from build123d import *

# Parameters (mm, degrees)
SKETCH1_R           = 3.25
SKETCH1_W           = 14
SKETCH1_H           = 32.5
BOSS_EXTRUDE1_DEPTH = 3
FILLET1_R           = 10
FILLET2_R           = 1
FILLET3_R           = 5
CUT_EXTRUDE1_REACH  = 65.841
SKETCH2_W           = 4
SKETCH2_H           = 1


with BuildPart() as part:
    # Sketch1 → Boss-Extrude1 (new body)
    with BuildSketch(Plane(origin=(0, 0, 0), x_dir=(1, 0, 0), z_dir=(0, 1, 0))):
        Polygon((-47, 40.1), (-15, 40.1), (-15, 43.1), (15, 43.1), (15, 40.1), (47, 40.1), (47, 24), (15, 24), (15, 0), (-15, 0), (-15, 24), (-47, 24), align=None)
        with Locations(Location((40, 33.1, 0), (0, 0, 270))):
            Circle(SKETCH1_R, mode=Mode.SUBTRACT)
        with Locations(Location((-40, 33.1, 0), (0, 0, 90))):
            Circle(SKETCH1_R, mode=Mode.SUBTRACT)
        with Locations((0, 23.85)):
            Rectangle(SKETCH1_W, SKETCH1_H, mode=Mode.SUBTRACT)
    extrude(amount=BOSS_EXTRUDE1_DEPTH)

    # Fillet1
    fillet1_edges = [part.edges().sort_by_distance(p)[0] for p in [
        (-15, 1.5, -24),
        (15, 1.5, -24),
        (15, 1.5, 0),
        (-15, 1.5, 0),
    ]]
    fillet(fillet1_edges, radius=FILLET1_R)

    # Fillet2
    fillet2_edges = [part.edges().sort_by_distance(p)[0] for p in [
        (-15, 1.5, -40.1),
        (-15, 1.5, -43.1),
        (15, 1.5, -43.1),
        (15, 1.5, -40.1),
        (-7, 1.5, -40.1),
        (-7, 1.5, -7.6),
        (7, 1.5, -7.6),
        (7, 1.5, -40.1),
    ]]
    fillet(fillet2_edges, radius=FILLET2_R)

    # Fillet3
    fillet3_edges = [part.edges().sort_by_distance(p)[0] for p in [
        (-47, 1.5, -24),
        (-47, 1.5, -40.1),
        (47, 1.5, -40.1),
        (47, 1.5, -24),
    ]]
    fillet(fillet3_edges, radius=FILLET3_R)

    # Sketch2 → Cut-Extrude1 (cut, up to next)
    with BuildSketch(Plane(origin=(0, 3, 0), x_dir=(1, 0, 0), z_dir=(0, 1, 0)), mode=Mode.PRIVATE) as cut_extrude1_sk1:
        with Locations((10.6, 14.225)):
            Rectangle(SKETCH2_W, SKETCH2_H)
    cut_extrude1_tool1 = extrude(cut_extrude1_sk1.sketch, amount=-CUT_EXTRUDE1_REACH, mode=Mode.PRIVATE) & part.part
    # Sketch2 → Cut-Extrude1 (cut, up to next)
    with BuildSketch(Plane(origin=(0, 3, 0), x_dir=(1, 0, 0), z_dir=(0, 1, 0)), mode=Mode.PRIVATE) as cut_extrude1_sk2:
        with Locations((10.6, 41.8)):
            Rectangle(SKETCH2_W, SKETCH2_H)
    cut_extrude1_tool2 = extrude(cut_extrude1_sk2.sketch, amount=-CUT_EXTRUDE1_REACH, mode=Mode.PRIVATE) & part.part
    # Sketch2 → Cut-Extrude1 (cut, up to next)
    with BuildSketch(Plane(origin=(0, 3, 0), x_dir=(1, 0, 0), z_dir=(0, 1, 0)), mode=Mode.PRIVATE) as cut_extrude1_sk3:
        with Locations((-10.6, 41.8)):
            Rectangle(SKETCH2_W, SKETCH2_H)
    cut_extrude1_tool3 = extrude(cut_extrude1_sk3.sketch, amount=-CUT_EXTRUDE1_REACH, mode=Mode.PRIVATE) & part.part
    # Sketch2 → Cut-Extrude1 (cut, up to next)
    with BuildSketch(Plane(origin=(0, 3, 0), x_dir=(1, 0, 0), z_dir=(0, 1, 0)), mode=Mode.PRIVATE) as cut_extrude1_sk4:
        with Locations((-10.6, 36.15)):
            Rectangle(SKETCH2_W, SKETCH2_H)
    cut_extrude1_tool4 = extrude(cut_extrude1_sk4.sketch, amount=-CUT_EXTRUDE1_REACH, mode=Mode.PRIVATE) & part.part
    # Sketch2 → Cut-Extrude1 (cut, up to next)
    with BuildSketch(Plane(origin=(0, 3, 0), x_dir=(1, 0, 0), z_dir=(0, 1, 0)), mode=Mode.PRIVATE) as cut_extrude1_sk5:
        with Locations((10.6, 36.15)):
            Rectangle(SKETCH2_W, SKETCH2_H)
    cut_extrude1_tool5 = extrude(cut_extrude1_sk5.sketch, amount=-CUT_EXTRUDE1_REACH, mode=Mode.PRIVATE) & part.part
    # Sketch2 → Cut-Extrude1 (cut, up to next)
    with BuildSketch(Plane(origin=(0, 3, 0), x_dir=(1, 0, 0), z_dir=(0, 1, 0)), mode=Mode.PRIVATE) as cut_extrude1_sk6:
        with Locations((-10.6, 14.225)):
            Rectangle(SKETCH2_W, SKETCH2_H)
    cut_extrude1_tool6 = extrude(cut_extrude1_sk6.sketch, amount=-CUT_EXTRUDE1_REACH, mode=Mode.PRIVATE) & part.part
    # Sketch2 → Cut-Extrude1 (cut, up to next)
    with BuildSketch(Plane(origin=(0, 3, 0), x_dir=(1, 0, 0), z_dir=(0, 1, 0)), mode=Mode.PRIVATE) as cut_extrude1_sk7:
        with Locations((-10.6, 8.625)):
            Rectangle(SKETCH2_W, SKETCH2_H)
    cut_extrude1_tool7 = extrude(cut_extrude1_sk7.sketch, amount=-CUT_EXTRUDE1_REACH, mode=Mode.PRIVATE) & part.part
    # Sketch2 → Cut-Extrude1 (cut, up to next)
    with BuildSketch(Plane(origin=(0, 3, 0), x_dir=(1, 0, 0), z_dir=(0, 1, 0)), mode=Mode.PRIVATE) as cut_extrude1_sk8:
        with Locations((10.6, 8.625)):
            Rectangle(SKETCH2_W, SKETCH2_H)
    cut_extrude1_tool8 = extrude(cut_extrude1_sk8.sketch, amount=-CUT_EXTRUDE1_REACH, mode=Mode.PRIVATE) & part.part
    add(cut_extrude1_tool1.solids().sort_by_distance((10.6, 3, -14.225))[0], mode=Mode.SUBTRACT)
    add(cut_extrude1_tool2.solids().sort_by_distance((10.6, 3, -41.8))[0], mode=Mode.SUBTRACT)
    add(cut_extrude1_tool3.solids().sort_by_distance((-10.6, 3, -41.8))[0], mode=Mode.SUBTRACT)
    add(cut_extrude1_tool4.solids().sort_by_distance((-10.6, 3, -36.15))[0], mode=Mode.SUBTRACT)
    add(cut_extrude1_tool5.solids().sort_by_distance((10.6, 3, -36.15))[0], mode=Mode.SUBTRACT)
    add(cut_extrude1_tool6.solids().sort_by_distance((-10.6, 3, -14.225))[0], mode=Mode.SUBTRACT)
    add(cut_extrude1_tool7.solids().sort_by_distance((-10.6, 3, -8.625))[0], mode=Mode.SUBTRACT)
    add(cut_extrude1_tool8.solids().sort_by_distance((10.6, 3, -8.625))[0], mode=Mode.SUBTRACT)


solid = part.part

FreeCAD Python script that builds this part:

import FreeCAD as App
import Part
import Sketcher

V = App.Vector
Q = App.Units.Quantity


def edges_at(feature, points):
    """Names of the edges that pass closest to the given points."""
    edges = feature.Shape.Edges
    near = lambda p: min(range(len(edges)), key=lambda i: edges[i].distToShape(Part.Vertex(*p))[0])
    return sorted({f"Edge{near(p) + 1}" for p in points})

doc = App.newDocument("Part")
body = doc.addObject("PartDesign::Body", "Body")

# Sketch on XZ plane
sketch1 = body.newObject("Sketcher::SketchObject", "Sketch")
sketch1.AttachmentSupport = (doc.getObject("XZ_Plane"), [""])
sketch1.MapMode = "FlatFace"
sketch1.addGeometry([
    Part.LineSegment(V(-15, -40.1, 0), V(-47, -40.1, 0)),  # 0
    Part.LineSegment(V(-47, -40.1, 0), V(-47, -24, 0)),  # 1
    Part.LineSegment(V(-47, -24, 0), V(-15, -24, 0)),  # 2
    Part.LineSegment(V(-15, -24, 0), V(-15, 0, 0)),  # 3
    Part.LineSegment(V(-15, 0, 0), V(15, 0, 0)),  # 4
    Part.LineSegment(V(15, 0, 0), V(15, -24, 0)),  # 5
    Part.LineSegment(V(15, -24, 0), V(47, -24, 0)),  # 6
    Part.LineSegment(V(47, -24, 0), V(47, -40.1, 0)),  # 7
    Part.LineSegment(V(47, -40.1, 0), V(15, -40.1, 0)),  # 8
    Part.LineSegment(V(15, -40.1, 0), V(15, -43.1, 0)),  # 9
    Part.LineSegment(V(15, -43.1, 0), V(-15, -43.1, 0)),  # 10
    Part.LineSegment(V(-15, -43.1, 0), V(-15, -40.1, 0)),  # 11
    Part.Circle(V(40, -33.1, 0), V(0, 0, 1), 3.2),  # 12
    Part.LineSegment(V(-7, -7.6, 0), V(-7, -40.1, 0)),  # 13
    Part.LineSegment(V(-7, -40.1, 0), V(7, -40.1, 0)),  # 14
    Part.LineSegment(V(7, -40.1, 0), V(7, -7.6, 0)),  # 15
    Part.LineSegment(V(7, -7.6, 0), V(-7, -7.6, 0)),  # 16
    Part.Circle(V(-40, -33.1, 0), V(0, 0, 1), 3.2),  # 17
], False)
sketch1.addConstraint([
    Sketcher.Constraint("Coincident", 0, 2, 1, 1),
    Sketcher.Constraint("Coincident", 1, 2, 2, 1),
    Sketcher.Constraint("Coincident", 2, 2, 3, 1),
    Sketcher.Constraint("Coincident", 3, 2, 4, 1),
    Sketcher.Constraint("Coincident", 4, 2, 5, 1),
    Sketcher.Constraint("Coincident", 5, 2, 6, 1),
    Sketcher.Constraint("Coincident", 6, 2, 7, 1),
    Sketcher.Constraint("Coincident", 7, 2, 8, 1),
    Sketcher.Constraint("Coincident", 8, 2, 9, 1),
    Sketcher.Constraint("Coincident", 9, 2, 10, 1),
    Sketcher.Constraint("Coincident", 10, 2, 11, 1),
    Sketcher.Constraint("Coincident", 11, 2, 0, 1),
    Sketcher.Constraint("Coincident", 13, 2, 14, 1),
    Sketcher.Constraint("Coincident", 14, 2, 15, 1),
    Sketcher.Constraint("Coincident", 15, 2, 16, 1),
    Sketcher.Constraint("Coincident", 16, 2, 13, 1),
    Sketcher.Constraint("Horizontal", 0),
    Sketcher.Constraint("Vertical", 1),
    Sketcher.Constraint("Horizontal", 2),
    Sketcher.Constraint("Vertical", 3),
    Sketcher.Constraint("Horizontal", 4),
    Sketcher.Constraint("Vertical", 5),
    Sketcher.Constraint("Horizontal", 6),
    Sketcher.Constraint("Vertical", 7),
    Sketcher.Constraint("Horizontal", 8),
    Sketcher.Constraint("Vertical", 9),
    Sketcher.Constraint("Horizontal", 10),
    Sketcher.Constraint("Vertical", 11),
    Sketcher.Constraint("Vertical", 13),
    Sketcher.Constraint("Horizontal", 14),
    Sketcher.Constraint("Vertical", 15),
    Sketcher.Constraint("Horizontal", 16),
    Sketcher.Constraint("Equal", 12, 17),
    Sketcher.Constraint("Symmetric", 3, 2, 4, 2, -1, 1),
    Sketcher.Constraint("Symmetric", 12, 3, 17, 3, -2),
    Sketcher.Constraint("Symmetric", 1, 2, 6, 2, -2),
    Sketcher.Constraint("Symmetric", 8, 2, 11, 2, -2),
    Sketcher.Constraint("Horizontal", 11, 2, 13, 2),
    Sketcher.Constraint("Vertical", 5, 2, 8, 2),
    Sketcher.Constraint("Diameter", 12, Q("6.5 mm")),
    Sketcher.Constraint("DistanceX", 0, 2, 0, 1, Q("32 mm")),
    Sketcher.Constraint("DistanceX", 4, 1, 4, 2, Q("30 mm")),
    Sketcher.Constraint("DistanceX", 14, 1, 14, 2, Q("14 mm")),
    Sketcher.Constraint("DistanceY", 3, 1, 3, 2, Q("24 mm")),
    Sketcher.Constraint("DistanceY", 9, 2, 9, 1, Q("3 mm")),
    Sketcher.Constraint("DistanceY", 1, 1, 1, 2, Q("16.1 mm")),
    Sketcher.Constraint("DistanceY", 13, 2, 13, 1, Q("32.5 mm")),
    Sketcher.Constraint("DistanceX", -1, 1, 12, 3, Q("40 mm")),
    Sketcher.Constraint("DistanceX", 13, 2, -1, 1, Q("7 mm")),
    Sketcher.Constraint("DistanceY", 0, 2, 17, 3, Q("7 mm")),
])
pad1 = body.newObject("PartDesign::Pad", "Pad")
pad1.Profile = sketch1
pad1.Length = 3
pad1.Reversed = True
doc.recompute()

fillet = body.newObject("PartDesign::Fillet", "Fillet")
fillet.Base = (pad1, edges_at(pad1, [
    (-15, 1.5, -24),
    (15, 1.5, -24),
    (15, 1.5, 0),
    (-15, 1.5, 0),
]))
fillet.Radius = 10
doc.recompute()

fillet2 = body.newObject("PartDesign::Fillet", "Fillet001")
fillet2.Base = (fillet, edges_at(fillet, [
    (-15, 1.5, -40.1),
    (-15, 1.5, -43.1),
    (15, 1.5, -43.1),
    (15, 1.5, -40.1),
    (-7, 1.5, -40.1),
    (-7, 1.5, -7.6),
    (7, 1.5, -7.6),
    (7, 1.5, -40.1),
]))
fillet2.Radius = 1
doc.recompute()

fillet3 = body.newObject("PartDesign::Fillet", "Fillet002")
fillet3.Base = (fillet2, edges_at(fillet2, [
    (-47, 1.5, -24),
    (-47, 1.5, -40.1),
    (47, 1.5, -40.1),
    (47, 1.5, -24),
]))
fillet3.Radius = 5

# Sketch on XZ plane
sketch2 = body.newObject("Sketcher::SketchObject", "Sketch001")
sketch2.AttachmentSupport = (doc.getObject("XZ_Plane"), [""])
sketch2.MapMode = "FlatFace"
sketch2.AttachmentOffset = App.Placement(V(0, 0, -3), App.Rotation())
sketch2.addGeometry([
    Part.LineSegment(V(8.6, -14.7, 0), V(8.6, -13.7, 0)),
    Part.LineSegment(V(8.6, -13.7, 0), V(12.6, -13.7, 0)),
    Part.LineSegment(V(12.6, -13.7, 0), V(12.6, -14.7, 0)),
    Part.LineSegment(V(12.6, -14.7, 0), V(8.6, -14.7, 0)),
], False)
sketch2.addConstraint([
    Sketcher.Constraint("Coincident", 0, 2, 1, 1),
    Sketcher.Constraint("Coincident", 1, 2, 2, 1),
    Sketcher.Constraint("Coincident", 2, 2, 3, 1),
    Sketcher.Constraint("Coincident", 3, 2, 0, 1),
    Sketcher.Constraint("Vertical", 0),
    Sketcher.Constraint("Horizontal", 1),
    Sketcher.Constraint("Vertical", 2),
    Sketcher.Constraint("Horizontal", 3),
    Sketcher.Constraint("DistanceX", 1, 1, 1, 2, Q("4 mm")),
    Sketcher.Constraint("DistanceY", 0, 1, 0, 2, Q("1 mm")),
    Sketcher.Constraint("DistanceX", -1, 1, 0, 2, Q("8.6 mm")),
    Sketcher.Constraint("DistanceY", 0, 2, -1, 1, Q("13.725 mm")),
])
pocket1 = body.newObject("PartDesign::Pocket", "Pocket")
pocket1.Profile = sketch2
pocket1.Type = "UpToFirst"
pocket1.Reversed = True

# Sketch on XZ plane
sketch3 = body.newObject("Sketcher::SketchObject", "Sketch002")
sketch3.AttachmentSupport = (doc.getObject("XZ_Plane"), [""])
sketch3.MapMode = "FlatFace"
sketch3.AttachmentOffset = App.Placement(V(0, 0, -3), App.Rotation())
sketch3.addGeometry([
    Part.LineSegment(V(8.6, -42.3, 0), V(8.6, -41.3, 0)),
    Part.LineSegment(V(8.6, -41.3, 0), V(12.6, -41.3, 0)),
    Part.LineSegment(V(12.6, -41.3, 0), V(12.6, -42.3, 0)),
    Part.LineSegment(V(12.6, -42.3, 0), V(8.6, -42.3, 0)),
], False)
sketch3.addConstraint([
    Sketcher.Constraint("Coincident", 0, 2, 1, 1),
    Sketcher.Constraint("Coincident", 1, 2, 2, 1),
    Sketcher.Constraint("Coincident", 2, 2, 3, 1),
    Sketcher.Constraint("Coincident", 3, 2, 0, 1),
    Sketcher.Constraint("Vertical", 0),
    Sketcher.Constraint("Horizontal", 1),
    Sketcher.Constraint("Vertical", 2),
    Sketcher.Constraint("Horizontal", 3),
    Sketcher.Constraint("DistanceX", 1, 1, 1, 2, Q("4 mm")),
    Sketcher.Constraint("DistanceY", 0, 1, 0, 2, Q("1 mm")),
    Sketcher.Constraint("DistanceX", -1, 1, 0, 2, Q("8.6 mm")),
    Sketcher.Constraint("DistanceY", 0, 2, -1, 1, Q("41.3 mm")),
])
pocket2 = body.newObject("PartDesign::Pocket", "Pocket001")
pocket2.Profile = sketch3
pocket2.Type = "UpToFirst"
pocket2.Reversed = True

# Sketch on XZ plane
sketch4 = body.newObject("Sketcher::SketchObject", "Sketch003")
sketch4.AttachmentSupport = (doc.getObject("XZ_Plane"), [""])
sketch4.MapMode = "FlatFace"
sketch4.AttachmentOffset = App.Placement(V(0, 0, -3), App.Rotation())
sketch4.addGeometry([
    Part.LineSegment(V(-12.6, -42.3, 0), V(-12.6, -41.3, 0)),
    Part.LineSegment(V(-12.6, -41.3, 0), V(-8.6, -41.3, 0)),
    Part.LineSegment(V(-8.6, -41.3, 0), V(-8.6, -42.3, 0)),
    Part.LineSegment(V(-8.6, -42.3, 0), V(-12.6, -42.3, 0)),
], False)
sketch4.addConstraint([
    Sketcher.Constraint("Coincident", 0, 2, 1, 1),
    Sketcher.Constraint("Coincident", 1, 2, 2, 1),
    Sketcher.Constraint("Coincident", 2, 2, 3, 1),
    Sketcher.Constraint("Coincident", 3, 2, 0, 1),
    Sketcher.Constraint("Vertical", 0),
    Sketcher.Constraint("Horizontal", 1),
    Sketcher.Constraint("Vertical", 2),
    Sketcher.Constraint("Horizontal", 3),
    Sketcher.Constraint("DistanceX", 1, 1, 1, 2, Q("4 mm")),
    Sketcher.Constraint("DistanceY", 0, 1, 0, 2, Q("1 mm")),
    Sketcher.Constraint("DistanceX", 0, 2, -1, 1, Q("12.6 mm")),
    Sketcher.Constraint("DistanceY", 0, 2, -1, 1, Q("41.3 mm")),
])
pocket3 = body.newObject("PartDesign::Pocket", "Pocket002")
pocket3.Profile = sketch4
pocket3.Type = "UpToFirst"
pocket3.Reversed = True

# Sketch on XZ plane
sketch5 = body.newObject("Sketcher::SketchObject", "Sketch004")
sketch5.AttachmentSupport = (doc.getObject("XZ_Plane"), [""])
sketch5.MapMode = "FlatFace"
sketch5.AttachmentOffset = App.Placement(V(0, 0, -3), App.Rotation())
sketch5.addGeometry([
    Part.LineSegment(V(-12.6, -36.6, 0), V(-12.6, -35.6, 0)),
    Part.LineSegment(V(-12.6, -35.6, 0), V(-8.6, -35.6, 0)),
    Part.LineSegment(V(-8.6, -35.6, 0), V(-8.6, -36.6, 0)),
    Part.LineSegment(V(-8.6, -36.6, 0), V(-12.6, -36.6, 0)),
], False)
sketch5.addConstraint([
    Sketcher.Constraint("Coincident", 0, 2, 1, 1),
    Sketcher.Constraint("Coincident", 1, 2, 2, 1),
    Sketcher.Constraint("Coincident", 2, 2, 3, 1),
    Sketcher.Constraint("Coincident", 3, 2, 0, 1),
    Sketcher.Constraint("Vertical", 0),
    Sketcher.Constraint("Horizontal", 1),
    Sketcher.Constraint("Vertical", 2),
    Sketcher.Constraint("Horizontal", 3),
    Sketcher.Constraint("DistanceX", 1, 1, 1, 2, Q("4 mm")),
    Sketcher.Constraint("DistanceY", 0, 1, 0, 2, Q("1 mm")),
    Sketcher.Constraint("DistanceX", 0, 2, -1, 1, Q("12.6 mm")),
    Sketcher.Constraint("DistanceY", 0, 2, -1, 1, Q("35.65 mm")),
])
pocket4 = body.newObject("PartDesign::Pocket", "Pocket003")
pocket4.Profile = sketch5
pocket4.Type = "UpToFirst"
pocket4.Reversed = True

# Sketch on XZ plane
sketch6 = body.newObject("Sketcher::SketchObject", "Sketch005")
sketch6.AttachmentSupport = (doc.getObject("XZ_Plane"), [""])
sketch6.MapMode = "FlatFace"
sketch6.AttachmentOffset = App.Placement(V(0, 0, -3), App.Rotation())
sketch6.addGeometry([
    Part.LineSegment(V(8.6, -36.6, 0), V(8.6, -35.6, 0)),
    Part.LineSegment(V(8.6, -35.6, 0), V(12.6, -35.6, 0)),
    Part.LineSegment(V(12.6, -35.6, 0), V(12.6, -36.6, 0)),
    Part.LineSegment(V(12.6, -36.6, 0), V(8.6, -36.6, 0)),
], False)
sketch6.addConstraint([
    Sketcher.Constraint("Coincident", 0, 2, 1, 1),
    Sketcher.Constraint("Coincident", 1, 2, 2, 1),
    Sketcher.Constraint("Coincident", 2, 2, 3, 1),
    Sketcher.Constraint("Coincident", 3, 2, 0, 1),
    Sketcher.Constraint("Vertical", 0),
    Sketcher.Constraint("Horizontal", 1),
    Sketcher.Constraint("Vertical", 2),
    Sketcher.Constraint("Horizontal", 3),
    Sketcher.Constraint("DistanceX", 1, 1, 1, 2, Q("4 mm")),
    Sketcher.Constraint("DistanceY", 0, 1, 0, 2, Q("1 mm")),
    Sketcher.Constraint("DistanceX", -1, 1, 0, 2, Q("8.6 mm")),
    Sketcher.Constraint("DistanceY", 0, 2, -1, 1, Q("35.65 mm")),
])
pocket5 = body.newObject("PartDesign::Pocket", "Pocket004")
pocket5.Profile = sketch6
pocket5.Type = "UpToFirst"
pocket5.Reversed = True

# Sketch on XZ plane
sketch7 = body.newObject("Sketcher::SketchObject", "Sketch006")
sketch7.AttachmentSupport = (doc.getObject("XZ_Plane"), [""])
sketch7.MapMode = "FlatFace"
sketch7.AttachmentOffset = App.Placement(V(0, 0, -3), App.Rotation())
sketch7.addGeometry([
    Part.LineSegment(V(-12.6, -14.7, 0), V(-12.6, -13.7, 0)),
    Part.LineSegment(V(-12.6, -13.7, 0), V(-8.6, -13.7, 0)),
    Part.LineSegment(V(-8.6, -13.7, 0), V(-8.6, -14.7, 0)),
    Part.LineSegment(V(-8.6, -14.7, 0), V(-12.6, -14.7, 0)),
], False)
sketch7.addConstraint([
    Sketcher.Constraint("Coincident", 0, 2, 1, 1),
    Sketcher.Constraint("Coincident", 1, 2, 2, 1),
    Sketcher.Constraint("Coincident", 2, 2, 3, 1),
    Sketcher.Constraint("Coincident", 3, 2, 0, 1),
    Sketcher.Constraint("Vertical", 0),
    Sketcher.Constraint("Horizontal", 1),
    Sketcher.Constraint("Vertical", 2),
    Sketcher.Constraint("Horizontal", 3),
    Sketcher.Constraint("DistanceX", 1, 1, 1, 2, Q("4 mm")),
    Sketcher.Constraint("DistanceY", 0, 1, 0, 2, Q("1 mm")),
    Sketcher.Constraint("DistanceX", 0, 2, -1, 1, Q("12.6 mm")),
    Sketcher.Constraint("DistanceY", 0, 2, -1, 1, Q("13.725 mm")),
])
pocket6 = body.newObject("PartDesign::Pocket", "Pocket005")
pocket6.Profile = sketch7
pocket6.Type = "UpToFirst"
pocket6.Reversed = True

# Sketch on XZ plane
sketch8 = body.newObject("Sketcher::SketchObject", "Sketch007")
sketch8.AttachmentSupport = (doc.getObject("XZ_Plane"), [""])
sketch8.MapMode = "FlatFace"
sketch8.AttachmentOffset = App.Placement(V(0, 0, -3), App.Rotation())
sketch8.addGeometry([
    Part.LineSegment(V(-12.6, -9.1, 0), V(-12.6, -8.1, 0)),
    Part.LineSegment(V(-12.6, -8.1, 0), V(-8.6, -8.1, 0)),
    Part.LineSegment(V(-8.6, -8.1, 0), V(-8.6, -9.1, 0)),
    Part.LineSegment(V(-8.6, -9.1, 0), V(-12.6, -9.1, 0)),
], False)
sketch8.addConstraint([
    Sketcher.Constraint("Coincident", 0, 2, 1, 1),
    Sketcher.Constraint("Coincident", 1, 2, 2, 1),
    Sketcher.Constraint("Coincident", 2, 2, 3, 1),
    Sketcher.Constraint("Coincident", 3, 2, 0, 1),
    Sketcher.Constraint("Vertical", 0),
    Sketcher.Constraint("Horizontal", 1),
    Sketcher.Constraint("Vertical", 2),
    Sketcher.Constraint("Horizontal", 3),
    Sketcher.Constraint("DistanceX", 1, 1, 1, 2, Q("4 mm")),
    Sketcher.Constraint("DistanceY", 0, 1, 0, 2, Q("1 mm")),
    Sketcher.Constraint("DistanceX", 0, 2, -1, 1, Q("12.6 mm")),
    Sketcher.Constraint("DistanceY", 0, 2, -1, 1, Q("8.125 mm")),
])
pocket7 = body.newObject("PartDesign::Pocket", "Pocket006")
pocket7.Profile = sketch8
pocket7.Type = "UpToFirst"
pocket7.Reversed = True

# Sketch on XZ plane
sketch9 = body.newObject("Sketcher::SketchObject", "Sketch008")
sketch9.AttachmentSupport = (doc.getObject("XZ_Plane"), [""])
sketch9.MapMode = "FlatFace"
sketch9.AttachmentOffset = App.Placement(V(0, 0, -3), App.Rotation())
sketch9.addGeometry([
    Part.LineSegment(V(8.6, -9.1, 0), V(8.6, -8.1, 0)),
    Part.LineSegment(V(8.6, -8.1, 0), V(12.6, -8.1, 0)),
    Part.LineSegment(V(12.6, -8.1, 0), V(12.6, -9.1, 0)),
    Part.LineSegment(V(12.6, -9.1, 0), V(8.6, -9.1, 0)),
], False)
sketch9.addConstraint([
    Sketcher.Constraint("Coincident", 0, 2, 1, 1),
    Sketcher.Constraint("Coincident", 1, 2, 2, 1),
    Sketcher.Constraint("Coincident", 2, 2, 3, 1),
    Sketcher.Constraint("Coincident", 3, 2, 0, 1),
    Sketcher.Constraint("Vertical", 0),
    Sketcher.Constraint("Horizontal", 1),
    Sketcher.Constraint("Vertical", 2),
    Sketcher.Constraint("Horizontal", 3),
    Sketcher.Constraint("DistanceX", 1, 1, 1, 2, Q("4 mm")),
    Sketcher.Constraint("DistanceY", 0, 1, 0, 2, Q("1 mm")),
    Sketcher.Constraint("DistanceX", -1, 1, 0, 2, Q("8.6 mm")),
    Sketcher.Constraint("DistanceY", 0, 2, -1, 1, Q("8.125 mm")),
])
pocket8 = body.newObject("PartDesign::Pocket", "Pocket007")
pocket8.Profile = sketch9
pocket8.Type = "UpToFirst"
pocket8.Reversed = True

doc.recompute()
